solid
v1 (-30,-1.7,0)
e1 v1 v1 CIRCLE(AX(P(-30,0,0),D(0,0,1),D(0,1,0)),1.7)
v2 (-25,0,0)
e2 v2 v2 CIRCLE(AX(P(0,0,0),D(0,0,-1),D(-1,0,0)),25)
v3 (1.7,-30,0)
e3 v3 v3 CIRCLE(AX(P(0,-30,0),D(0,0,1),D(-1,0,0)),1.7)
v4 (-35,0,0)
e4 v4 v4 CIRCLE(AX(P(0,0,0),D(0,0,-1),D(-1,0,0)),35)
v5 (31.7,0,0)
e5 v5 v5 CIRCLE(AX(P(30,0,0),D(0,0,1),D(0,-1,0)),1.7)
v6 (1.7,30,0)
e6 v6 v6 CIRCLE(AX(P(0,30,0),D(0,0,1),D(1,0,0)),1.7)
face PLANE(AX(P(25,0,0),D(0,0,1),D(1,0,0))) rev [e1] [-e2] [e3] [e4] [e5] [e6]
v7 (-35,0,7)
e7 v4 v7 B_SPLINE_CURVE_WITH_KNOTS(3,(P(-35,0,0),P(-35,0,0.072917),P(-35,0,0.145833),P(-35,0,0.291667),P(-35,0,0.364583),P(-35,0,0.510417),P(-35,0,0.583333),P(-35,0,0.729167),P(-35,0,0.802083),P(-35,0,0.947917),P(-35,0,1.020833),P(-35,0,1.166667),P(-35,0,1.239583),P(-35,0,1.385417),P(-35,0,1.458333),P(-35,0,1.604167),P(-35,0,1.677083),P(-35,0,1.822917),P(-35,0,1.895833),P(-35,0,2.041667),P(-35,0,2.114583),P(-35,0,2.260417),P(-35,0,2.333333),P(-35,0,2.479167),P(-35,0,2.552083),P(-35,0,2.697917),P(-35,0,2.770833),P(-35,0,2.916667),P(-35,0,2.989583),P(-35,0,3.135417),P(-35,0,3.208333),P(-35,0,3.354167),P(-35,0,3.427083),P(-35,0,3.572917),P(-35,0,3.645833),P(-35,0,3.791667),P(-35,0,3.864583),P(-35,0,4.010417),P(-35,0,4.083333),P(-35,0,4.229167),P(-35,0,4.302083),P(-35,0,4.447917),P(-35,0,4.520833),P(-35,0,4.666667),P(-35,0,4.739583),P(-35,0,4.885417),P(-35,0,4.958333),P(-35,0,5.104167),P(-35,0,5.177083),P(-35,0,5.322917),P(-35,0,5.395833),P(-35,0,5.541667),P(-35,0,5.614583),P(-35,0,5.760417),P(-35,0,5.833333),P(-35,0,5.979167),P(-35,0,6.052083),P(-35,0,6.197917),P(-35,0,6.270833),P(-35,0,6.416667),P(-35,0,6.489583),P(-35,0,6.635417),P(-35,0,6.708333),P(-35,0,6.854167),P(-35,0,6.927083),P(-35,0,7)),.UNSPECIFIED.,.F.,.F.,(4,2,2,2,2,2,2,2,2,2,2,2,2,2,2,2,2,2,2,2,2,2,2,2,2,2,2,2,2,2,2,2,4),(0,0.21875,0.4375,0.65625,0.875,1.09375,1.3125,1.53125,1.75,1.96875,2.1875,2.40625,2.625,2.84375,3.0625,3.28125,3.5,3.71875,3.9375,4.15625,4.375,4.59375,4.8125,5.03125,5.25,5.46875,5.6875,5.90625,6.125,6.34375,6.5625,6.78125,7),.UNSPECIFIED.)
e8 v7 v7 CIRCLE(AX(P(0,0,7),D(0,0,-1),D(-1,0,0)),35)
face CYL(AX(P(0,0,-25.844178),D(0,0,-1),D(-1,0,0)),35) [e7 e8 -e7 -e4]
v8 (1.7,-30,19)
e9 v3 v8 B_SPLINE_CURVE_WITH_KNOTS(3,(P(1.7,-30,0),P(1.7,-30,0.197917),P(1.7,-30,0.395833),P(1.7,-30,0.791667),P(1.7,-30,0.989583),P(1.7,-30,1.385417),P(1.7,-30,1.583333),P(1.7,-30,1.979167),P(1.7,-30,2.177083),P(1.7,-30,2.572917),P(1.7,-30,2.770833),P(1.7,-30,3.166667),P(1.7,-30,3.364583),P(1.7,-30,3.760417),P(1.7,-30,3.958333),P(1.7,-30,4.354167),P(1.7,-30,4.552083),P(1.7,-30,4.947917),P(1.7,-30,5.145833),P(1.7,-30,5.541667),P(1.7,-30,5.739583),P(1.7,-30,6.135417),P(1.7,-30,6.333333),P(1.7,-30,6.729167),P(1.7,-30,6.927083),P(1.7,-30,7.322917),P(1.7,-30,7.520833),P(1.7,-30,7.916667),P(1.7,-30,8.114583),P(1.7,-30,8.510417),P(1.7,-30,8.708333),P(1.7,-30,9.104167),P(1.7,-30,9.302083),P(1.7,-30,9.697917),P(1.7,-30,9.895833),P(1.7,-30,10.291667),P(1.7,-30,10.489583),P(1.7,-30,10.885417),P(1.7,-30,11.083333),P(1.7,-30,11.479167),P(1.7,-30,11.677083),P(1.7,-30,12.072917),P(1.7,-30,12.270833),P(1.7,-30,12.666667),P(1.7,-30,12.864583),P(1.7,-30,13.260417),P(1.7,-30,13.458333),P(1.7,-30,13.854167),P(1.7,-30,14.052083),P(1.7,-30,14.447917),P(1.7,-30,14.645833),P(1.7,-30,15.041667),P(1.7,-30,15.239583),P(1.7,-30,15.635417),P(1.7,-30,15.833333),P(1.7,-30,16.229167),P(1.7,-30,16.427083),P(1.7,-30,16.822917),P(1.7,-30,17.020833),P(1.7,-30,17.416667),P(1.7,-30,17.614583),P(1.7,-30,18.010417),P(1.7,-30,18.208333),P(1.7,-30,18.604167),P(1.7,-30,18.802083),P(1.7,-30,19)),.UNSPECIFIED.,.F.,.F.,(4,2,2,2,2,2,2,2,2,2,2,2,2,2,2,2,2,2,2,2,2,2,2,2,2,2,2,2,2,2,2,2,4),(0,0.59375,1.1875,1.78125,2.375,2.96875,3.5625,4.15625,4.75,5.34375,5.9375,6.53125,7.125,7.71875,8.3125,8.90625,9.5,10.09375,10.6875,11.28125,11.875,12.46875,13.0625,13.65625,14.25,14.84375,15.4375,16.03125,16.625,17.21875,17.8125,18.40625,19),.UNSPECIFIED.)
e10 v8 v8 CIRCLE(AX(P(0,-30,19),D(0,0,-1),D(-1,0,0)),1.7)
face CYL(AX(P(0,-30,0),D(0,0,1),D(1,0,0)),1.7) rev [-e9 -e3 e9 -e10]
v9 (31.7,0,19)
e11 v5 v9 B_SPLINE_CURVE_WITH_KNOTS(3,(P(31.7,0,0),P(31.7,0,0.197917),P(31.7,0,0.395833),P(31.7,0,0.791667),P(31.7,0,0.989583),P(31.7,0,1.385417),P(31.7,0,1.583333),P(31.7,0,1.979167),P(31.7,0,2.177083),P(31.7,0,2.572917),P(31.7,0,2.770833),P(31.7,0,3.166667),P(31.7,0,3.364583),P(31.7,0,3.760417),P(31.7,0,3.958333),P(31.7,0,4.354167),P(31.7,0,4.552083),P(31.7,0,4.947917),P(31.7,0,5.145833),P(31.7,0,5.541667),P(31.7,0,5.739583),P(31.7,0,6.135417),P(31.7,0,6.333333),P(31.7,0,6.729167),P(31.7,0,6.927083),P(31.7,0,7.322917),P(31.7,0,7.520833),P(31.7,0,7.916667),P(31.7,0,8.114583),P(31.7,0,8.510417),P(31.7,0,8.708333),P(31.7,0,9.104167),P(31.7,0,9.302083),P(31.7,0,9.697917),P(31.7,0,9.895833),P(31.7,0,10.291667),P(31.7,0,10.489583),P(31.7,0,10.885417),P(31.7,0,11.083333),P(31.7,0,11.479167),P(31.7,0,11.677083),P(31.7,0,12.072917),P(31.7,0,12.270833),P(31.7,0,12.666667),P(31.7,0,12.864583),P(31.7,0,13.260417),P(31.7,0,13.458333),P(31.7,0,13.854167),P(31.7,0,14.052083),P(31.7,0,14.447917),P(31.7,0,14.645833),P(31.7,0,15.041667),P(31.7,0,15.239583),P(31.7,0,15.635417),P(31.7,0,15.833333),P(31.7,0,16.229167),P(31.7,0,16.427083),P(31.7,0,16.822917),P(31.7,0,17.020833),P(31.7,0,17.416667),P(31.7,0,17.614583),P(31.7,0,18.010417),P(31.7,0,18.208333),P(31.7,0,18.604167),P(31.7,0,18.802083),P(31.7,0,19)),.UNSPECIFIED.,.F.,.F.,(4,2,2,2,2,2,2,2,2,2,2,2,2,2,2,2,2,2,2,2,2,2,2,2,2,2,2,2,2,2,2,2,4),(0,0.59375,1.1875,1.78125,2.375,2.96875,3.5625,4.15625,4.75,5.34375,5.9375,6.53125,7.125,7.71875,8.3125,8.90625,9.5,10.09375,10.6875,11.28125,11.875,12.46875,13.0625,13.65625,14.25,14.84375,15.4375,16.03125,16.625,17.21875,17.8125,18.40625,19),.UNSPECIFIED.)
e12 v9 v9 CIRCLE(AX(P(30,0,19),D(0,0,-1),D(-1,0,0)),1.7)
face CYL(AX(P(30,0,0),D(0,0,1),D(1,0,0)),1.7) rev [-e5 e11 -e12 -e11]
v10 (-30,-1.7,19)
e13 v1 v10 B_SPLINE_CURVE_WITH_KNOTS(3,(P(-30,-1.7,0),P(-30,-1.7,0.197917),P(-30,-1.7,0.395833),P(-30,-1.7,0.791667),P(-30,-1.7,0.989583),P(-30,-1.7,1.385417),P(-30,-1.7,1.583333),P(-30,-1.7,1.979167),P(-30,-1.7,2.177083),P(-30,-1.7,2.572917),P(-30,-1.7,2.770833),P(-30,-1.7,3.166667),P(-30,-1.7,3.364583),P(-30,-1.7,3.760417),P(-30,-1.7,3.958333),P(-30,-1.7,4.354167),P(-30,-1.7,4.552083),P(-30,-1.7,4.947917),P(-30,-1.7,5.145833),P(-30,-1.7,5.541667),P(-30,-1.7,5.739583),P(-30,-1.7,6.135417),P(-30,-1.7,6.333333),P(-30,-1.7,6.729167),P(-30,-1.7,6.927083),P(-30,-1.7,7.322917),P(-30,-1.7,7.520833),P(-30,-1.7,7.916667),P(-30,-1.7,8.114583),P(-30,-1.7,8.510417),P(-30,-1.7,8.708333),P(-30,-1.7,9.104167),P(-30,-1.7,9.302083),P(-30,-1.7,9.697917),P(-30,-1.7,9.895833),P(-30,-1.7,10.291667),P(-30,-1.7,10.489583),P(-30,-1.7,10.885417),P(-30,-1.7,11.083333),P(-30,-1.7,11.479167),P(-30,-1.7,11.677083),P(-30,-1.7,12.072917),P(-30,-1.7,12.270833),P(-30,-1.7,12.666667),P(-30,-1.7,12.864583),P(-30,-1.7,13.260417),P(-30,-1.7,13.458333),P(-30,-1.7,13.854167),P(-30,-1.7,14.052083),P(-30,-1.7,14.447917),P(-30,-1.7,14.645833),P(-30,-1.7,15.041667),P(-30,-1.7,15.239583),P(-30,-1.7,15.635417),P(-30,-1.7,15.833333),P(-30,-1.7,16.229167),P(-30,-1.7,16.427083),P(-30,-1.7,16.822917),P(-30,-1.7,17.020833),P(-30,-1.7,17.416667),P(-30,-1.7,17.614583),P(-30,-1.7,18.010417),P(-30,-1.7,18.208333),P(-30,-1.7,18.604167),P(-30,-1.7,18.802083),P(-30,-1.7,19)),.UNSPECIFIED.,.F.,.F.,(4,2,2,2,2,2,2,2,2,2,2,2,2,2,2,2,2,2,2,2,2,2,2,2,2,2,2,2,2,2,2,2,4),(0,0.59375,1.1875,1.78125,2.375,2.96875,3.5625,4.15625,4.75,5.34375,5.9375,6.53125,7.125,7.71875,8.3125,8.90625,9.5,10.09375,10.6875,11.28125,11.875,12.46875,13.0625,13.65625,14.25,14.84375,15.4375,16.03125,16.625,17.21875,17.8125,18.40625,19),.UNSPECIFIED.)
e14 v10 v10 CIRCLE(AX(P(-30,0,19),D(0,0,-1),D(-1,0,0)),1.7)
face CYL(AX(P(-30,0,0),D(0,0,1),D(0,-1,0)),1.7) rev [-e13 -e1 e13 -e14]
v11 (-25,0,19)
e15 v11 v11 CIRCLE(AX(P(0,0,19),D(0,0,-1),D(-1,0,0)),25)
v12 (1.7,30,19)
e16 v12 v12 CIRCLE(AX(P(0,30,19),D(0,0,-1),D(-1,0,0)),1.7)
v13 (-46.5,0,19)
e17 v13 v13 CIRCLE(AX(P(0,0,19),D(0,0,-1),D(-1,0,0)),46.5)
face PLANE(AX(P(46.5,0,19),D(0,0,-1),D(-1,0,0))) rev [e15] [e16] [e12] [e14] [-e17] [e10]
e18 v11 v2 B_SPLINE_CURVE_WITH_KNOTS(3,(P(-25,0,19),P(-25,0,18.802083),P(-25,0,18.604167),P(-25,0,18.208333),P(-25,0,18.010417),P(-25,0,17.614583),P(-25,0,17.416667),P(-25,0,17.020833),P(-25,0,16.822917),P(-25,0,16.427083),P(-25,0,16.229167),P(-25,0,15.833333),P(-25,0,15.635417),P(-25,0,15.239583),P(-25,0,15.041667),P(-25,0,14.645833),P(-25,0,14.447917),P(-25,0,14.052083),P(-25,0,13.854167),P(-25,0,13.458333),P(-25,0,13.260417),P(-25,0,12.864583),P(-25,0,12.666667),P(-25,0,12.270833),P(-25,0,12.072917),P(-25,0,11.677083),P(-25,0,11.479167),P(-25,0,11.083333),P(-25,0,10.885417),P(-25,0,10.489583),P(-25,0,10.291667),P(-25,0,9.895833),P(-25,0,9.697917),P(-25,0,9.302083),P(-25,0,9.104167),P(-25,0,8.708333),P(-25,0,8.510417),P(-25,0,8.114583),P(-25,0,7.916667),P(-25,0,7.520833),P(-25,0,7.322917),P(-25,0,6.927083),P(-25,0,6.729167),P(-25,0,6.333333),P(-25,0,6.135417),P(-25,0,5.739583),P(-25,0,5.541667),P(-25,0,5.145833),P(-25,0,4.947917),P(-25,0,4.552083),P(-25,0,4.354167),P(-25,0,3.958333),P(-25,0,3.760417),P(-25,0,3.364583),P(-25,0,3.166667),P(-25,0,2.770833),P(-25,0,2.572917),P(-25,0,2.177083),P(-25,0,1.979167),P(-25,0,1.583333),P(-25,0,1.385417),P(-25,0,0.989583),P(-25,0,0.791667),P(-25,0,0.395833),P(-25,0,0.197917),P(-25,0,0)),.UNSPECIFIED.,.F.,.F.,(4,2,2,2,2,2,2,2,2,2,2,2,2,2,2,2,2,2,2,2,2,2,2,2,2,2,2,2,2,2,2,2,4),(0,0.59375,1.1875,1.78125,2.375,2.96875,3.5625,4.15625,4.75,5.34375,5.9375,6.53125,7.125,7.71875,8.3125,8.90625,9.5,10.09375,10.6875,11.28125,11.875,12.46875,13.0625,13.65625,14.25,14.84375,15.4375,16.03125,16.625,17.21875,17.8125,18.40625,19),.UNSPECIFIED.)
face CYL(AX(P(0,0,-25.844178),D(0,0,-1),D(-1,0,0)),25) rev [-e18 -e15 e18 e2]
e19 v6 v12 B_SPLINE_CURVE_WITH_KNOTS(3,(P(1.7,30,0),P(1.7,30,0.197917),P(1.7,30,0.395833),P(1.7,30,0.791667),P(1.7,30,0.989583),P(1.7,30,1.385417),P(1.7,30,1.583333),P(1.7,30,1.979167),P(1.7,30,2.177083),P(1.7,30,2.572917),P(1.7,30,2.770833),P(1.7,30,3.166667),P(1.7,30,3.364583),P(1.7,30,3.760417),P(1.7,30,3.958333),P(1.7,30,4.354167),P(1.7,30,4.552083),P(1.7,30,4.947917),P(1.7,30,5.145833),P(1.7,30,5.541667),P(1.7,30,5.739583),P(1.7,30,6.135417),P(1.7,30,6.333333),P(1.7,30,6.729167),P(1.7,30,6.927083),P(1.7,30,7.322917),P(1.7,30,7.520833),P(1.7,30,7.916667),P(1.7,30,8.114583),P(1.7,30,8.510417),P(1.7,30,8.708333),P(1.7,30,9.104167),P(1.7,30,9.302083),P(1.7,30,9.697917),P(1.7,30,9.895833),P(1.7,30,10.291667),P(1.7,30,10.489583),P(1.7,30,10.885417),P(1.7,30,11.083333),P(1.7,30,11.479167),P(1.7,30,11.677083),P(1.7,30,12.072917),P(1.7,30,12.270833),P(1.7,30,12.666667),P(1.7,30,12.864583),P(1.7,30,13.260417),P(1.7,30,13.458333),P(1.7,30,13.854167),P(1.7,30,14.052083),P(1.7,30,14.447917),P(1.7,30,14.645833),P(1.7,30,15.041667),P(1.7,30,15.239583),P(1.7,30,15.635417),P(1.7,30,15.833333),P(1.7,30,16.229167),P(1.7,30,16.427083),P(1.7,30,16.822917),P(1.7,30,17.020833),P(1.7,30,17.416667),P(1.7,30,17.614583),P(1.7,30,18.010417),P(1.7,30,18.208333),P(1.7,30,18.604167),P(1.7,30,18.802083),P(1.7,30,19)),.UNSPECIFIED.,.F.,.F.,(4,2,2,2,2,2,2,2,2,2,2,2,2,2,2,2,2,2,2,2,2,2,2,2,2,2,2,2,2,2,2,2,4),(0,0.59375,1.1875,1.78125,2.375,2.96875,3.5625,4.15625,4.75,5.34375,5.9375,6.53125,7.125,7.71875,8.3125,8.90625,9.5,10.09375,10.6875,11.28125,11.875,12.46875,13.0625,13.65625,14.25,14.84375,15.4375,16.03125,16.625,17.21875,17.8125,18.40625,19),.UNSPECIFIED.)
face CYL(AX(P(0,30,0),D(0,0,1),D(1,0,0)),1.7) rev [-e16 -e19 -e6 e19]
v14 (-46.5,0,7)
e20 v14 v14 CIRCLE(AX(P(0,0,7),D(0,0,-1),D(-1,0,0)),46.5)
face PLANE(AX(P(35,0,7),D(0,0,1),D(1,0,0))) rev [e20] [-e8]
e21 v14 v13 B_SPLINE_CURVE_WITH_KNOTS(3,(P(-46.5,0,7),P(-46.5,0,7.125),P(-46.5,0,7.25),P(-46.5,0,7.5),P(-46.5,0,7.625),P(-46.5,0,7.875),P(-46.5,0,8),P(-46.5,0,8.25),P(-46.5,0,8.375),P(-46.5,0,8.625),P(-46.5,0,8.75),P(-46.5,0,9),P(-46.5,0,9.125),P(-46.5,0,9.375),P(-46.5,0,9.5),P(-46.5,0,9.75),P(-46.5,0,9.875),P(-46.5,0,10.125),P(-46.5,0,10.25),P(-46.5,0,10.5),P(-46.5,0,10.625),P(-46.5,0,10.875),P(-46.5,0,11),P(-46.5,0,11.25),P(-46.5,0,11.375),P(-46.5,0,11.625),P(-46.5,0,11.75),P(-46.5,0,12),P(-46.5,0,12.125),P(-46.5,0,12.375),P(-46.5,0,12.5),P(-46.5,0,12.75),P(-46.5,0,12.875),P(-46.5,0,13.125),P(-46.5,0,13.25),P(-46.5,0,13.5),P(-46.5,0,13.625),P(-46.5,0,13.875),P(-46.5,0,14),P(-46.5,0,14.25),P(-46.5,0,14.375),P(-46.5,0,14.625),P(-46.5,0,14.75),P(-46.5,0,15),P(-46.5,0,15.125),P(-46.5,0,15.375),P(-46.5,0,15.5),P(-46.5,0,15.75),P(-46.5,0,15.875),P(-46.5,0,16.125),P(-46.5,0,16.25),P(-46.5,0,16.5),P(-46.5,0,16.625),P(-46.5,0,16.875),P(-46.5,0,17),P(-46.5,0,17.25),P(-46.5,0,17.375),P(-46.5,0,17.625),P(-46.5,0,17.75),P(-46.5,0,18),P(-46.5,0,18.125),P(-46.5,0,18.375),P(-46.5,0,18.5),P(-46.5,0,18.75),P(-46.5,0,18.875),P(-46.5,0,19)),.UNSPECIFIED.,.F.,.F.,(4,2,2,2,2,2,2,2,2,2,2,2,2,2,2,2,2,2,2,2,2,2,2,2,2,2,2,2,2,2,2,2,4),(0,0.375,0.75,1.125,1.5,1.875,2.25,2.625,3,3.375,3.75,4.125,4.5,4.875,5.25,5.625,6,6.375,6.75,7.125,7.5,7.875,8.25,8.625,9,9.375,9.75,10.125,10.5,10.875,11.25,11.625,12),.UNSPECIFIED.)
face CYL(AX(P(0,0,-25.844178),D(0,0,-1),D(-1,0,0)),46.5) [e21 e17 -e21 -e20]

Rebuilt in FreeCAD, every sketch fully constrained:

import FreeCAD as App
import Part
import Sketcher


def add_polygon(sketch, points):
    """Adds a closed chain of lines whose ends are joined by coincident constraints."""
    first, n = sketch.GeometryCount, len(points)
    for a, b in zip(points, points[1:] + points[:1]):
        sketch.addGeometry(Part.LineSegment(App.Vector(*a, 0), App.Vector(*b, 0)), False)
    for i in range(n):
        sketch.addConstraint(Sketcher.Constraint("Coincident", first + i, 2, first + (i + 1) % n, 1))

doc = App.newDocument("Part")
body = doc.addObject("PartDesign::Body", "Body")

# Sketch on XZ plane
sketch1 = doc.addObject("Sketcher::SketchObject", "Sketch")
body.addObject(sketch1)
sketch1.AttachmentSupport = (doc.XZ_Plane, [""])
sketch1.MapMode = "FlatFace"
add_polygon(sketch1, [(25, 0), (25, 19), (46.5, 19), (46.5, 7), (35, 7), (35, 0)])  # lines 0-5
sketch1.addConstraint(Sketcher.Constraint("Vertical", 0))
sketch1.addConstraint(Sketcher.Constraint("Horizontal", 1))
sketch1.addConstraint(Sketcher.Constraint("Vertical", 2))
sketch1.addConstraint(Sketcher.Constraint("Horizontal", 3))
sketch1.addConstraint(Sketcher.Constraint("Vertical", 4))
sketch1.addConstraint(Sketcher.Constraint("Horizontal", 5))
sketch1.addConstraint(Sketcher.Constraint("PointOnObject", 4, 2, -1))
sketch1.addConstraint(Sketcher.Constraint("DistanceX", 5, 2, 5, 1, 10.0))
sketch1.addConstraint(Sketcher.Constraint("DistanceY", 0, 1, 0, 2, 19.0))
sketch1.addConstraint(Sketcher.Constraint("DistanceY", 2, 2, 2, 1, 12.0))
sketch1.addConstraint(Sketcher.Constraint("DistanceX", 1, 1, 1, 2, 21.5))
sketch1.addConstraint(Sketcher.Constraint("DistanceX", -1, 1, 0, 2, 25.0))
revolution = doc.addObject("PartDesign::Revolution", "Revolution")
body.addObject(revolution)
revolution.Profile = sketch1
revolution.ReferenceAxis = (sketch1, ["V_Axis"])
revolution.Angle = 360

# Sketch on XY plane
sketch2 = doc.addObject("Sketcher::SketchObject", "Sketch001")
body.addObject(sketch2)
sketch2.AttachmentSupport = (doc.XY_Plane, [""])
sketch2.MapMode = "FlatFace"
sketch2.AttachmentOffset = App.Placement(App.Vector(0, 0, 19), App.Rotation())
sketch2.addGeometry(Part.Circle(App.Vector(0, 30, 0), App.Vector(0, 0, 1), 1.7), False)
sketch2.addConstraint(Sketcher.Constraint("PointOnObject", 0, 3, -2))
sketch2.addConstraint(Sketcher.Constraint("Diameter", 0, 3.4))
sketch2.addConstraint(Sketcher.Constraint("DistanceY", -1, 1, 0, 3, 30.0))
pocket1 = doc.addObject("PartDesign::Pocket", "Pocket")
body.addObject(pocket1)
pocket1.Profile = sketch2
pocket1.Length = 138.901424
pocket1.Midplane = True
doc.recompute()

polarpattern = doc.addObject("PartDesign::PolarPattern", "PolarPattern")
body.addObject(polarpattern)
polarpattern.Originals = [pocket1]
polarpattern.Axis = (doc.Z_Axis, [""])
polarpattern.Angle = 360
polarpattern.Occurrences = 4
body.Tip = polarpattern

doc.recompute()
